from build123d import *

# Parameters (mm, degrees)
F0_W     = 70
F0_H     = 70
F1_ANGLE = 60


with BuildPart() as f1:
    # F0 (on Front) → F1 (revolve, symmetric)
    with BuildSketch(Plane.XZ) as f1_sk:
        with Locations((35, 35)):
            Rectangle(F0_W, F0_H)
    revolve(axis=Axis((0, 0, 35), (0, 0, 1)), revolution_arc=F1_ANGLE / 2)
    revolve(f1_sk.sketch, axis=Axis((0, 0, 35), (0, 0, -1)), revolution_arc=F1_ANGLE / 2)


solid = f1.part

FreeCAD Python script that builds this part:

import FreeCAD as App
import Part
import Sketcher

V = App.Vector

doc = App.newDocument("Part")
params = doc.addObject("Spreadsheet::Sheet", "Params")
for row, (alias, value) in enumerate([
    ("sketch1_width", "70 mm"),
    ("revolution_angle", "30 deg"),
    ("sketch2_width", "70 mm"),
    ("revolution2_angle", "30 deg"),
], start=1):
    params.set(f"A{row}", alias)
    params.set(f"B{row}", "=" + value)
    params.setAlias(f"B{row}", alias)

body = doc.addObject("PartDesign::Body", "Body")

sketch1 = doc.addObject("Sketcher::SketchObject", "Sketch")
body.addObject(sketch1)
sketch1.AttachmentSupport = (doc.XZ_Plane, [""])
sketch1.MapMode = "FlatFace"
sketch1.addGeometry([
    Part.LineSegment(V(0, 70, 0), V(0, 0, 0)),
    Part.LineSegment(V(0, 0, 0), V(70, 0, 0)),
    Part.LineSegment(V(70, 0, 0), V(70, 70, 0)),
    Part.LineSegment(V(70, 70, 0), V(0, 70, 0)),
], False)
sketch1.addConstraint([
    Sketcher.Constraint("Coincident", 0, 2, 1, 1),
    Sketcher.Constraint("Coincident", 1, 2, 2, 1),
    Sketcher.Constraint("Coincident", 2, 2, 3, 1),
    Sketcher.Constraint("Coincident", 3, 2, 0, 1),
    Sketcher.Constraint("Vertical", 0),
    Sketcher.Constraint("Horizontal", 1),
    Sketcher.Constraint("Vertical", 2),
    Sketcher.Constraint("Horizontal", 3),
    Sketcher.Constraint("Coincident", 0, 2, -1, 1),
    Sketcher.Constraint("Equal", 3, 0),
    Sketcher.Constraint("DistanceX", 1, 1, 1, 2, 70.0),
])
sketch1.setExpression("Constraints[10]", "Params.sketch1_width")
revolution = doc.addObject("PartDesign::Revolution", "Revolution")
body.addObject(revolution)
revolution.Profile = sketch1
revolution.ReferenceAxis = (sketch1, ["V_Axis"])
revolution.setExpression("Angle", "Params.revolution_angle")

sketch2 = doc.addObject("Sketcher::SketchObject", "Sketch001")
body.addObject(sketch2)
sketch2.AttachmentSupport = (doc.XZ_Plane, [""])
sketch2.MapMode = "FlatFace"
sketch2.addGeometry([
    Part.LineSegment(V(0, 70, 0), V(0, 0, 0)),
    Part.LineSegment(V(0, 0, 0), V(70, 0, 0)),
    Part.LineSegment(V(70, 0, 0), V(70, 70, 0)),
    Part.LineSegment(V(70, 70, 0), V(0, 70, 0)),
], False)
sketch2.addConstraint([
    Sketcher.Constraint("Coincident", 0, 2, 1, 1),
    Sketcher.Constraint("Coincident", 1, 2, 2, 1),
    Sketcher.Constraint("Coincident", 2, 2, 3, 1),
    Sketcher.Constraint("Coincident", 3, 2, 0, 1),
    Sketcher.Constraint("Vertical", 0),
    Sketcher.Constraint("Horizontal", 1),
    Sketcher.Constraint("Vertical", 2),
    Sketcher.Constraint("Horizontal", 3),
    Sketcher.Constraint("Coincident", 0, 2, -1, 1),
    Sketcher.Constraint("Equal", 3, 0),
    Sketcher.Constraint("DistanceX", 1, 1, 1, 2, 70.0),
])
sketch2.setExpression("Constraints[10]", "Params.sketch2_width")
revolution2 = doc.addObject("PartDesign::Revolution", "Revolution001")
body.addObject(revolution2)
revolution2.Profile = sketch2
revolution2.ReferenceAxis = (sketch2, ["V_Axis"])
revolution2.setExpression("Angle", "Params.revolution2_angle")
revolution2.Reversed = True

doc.recompute()
